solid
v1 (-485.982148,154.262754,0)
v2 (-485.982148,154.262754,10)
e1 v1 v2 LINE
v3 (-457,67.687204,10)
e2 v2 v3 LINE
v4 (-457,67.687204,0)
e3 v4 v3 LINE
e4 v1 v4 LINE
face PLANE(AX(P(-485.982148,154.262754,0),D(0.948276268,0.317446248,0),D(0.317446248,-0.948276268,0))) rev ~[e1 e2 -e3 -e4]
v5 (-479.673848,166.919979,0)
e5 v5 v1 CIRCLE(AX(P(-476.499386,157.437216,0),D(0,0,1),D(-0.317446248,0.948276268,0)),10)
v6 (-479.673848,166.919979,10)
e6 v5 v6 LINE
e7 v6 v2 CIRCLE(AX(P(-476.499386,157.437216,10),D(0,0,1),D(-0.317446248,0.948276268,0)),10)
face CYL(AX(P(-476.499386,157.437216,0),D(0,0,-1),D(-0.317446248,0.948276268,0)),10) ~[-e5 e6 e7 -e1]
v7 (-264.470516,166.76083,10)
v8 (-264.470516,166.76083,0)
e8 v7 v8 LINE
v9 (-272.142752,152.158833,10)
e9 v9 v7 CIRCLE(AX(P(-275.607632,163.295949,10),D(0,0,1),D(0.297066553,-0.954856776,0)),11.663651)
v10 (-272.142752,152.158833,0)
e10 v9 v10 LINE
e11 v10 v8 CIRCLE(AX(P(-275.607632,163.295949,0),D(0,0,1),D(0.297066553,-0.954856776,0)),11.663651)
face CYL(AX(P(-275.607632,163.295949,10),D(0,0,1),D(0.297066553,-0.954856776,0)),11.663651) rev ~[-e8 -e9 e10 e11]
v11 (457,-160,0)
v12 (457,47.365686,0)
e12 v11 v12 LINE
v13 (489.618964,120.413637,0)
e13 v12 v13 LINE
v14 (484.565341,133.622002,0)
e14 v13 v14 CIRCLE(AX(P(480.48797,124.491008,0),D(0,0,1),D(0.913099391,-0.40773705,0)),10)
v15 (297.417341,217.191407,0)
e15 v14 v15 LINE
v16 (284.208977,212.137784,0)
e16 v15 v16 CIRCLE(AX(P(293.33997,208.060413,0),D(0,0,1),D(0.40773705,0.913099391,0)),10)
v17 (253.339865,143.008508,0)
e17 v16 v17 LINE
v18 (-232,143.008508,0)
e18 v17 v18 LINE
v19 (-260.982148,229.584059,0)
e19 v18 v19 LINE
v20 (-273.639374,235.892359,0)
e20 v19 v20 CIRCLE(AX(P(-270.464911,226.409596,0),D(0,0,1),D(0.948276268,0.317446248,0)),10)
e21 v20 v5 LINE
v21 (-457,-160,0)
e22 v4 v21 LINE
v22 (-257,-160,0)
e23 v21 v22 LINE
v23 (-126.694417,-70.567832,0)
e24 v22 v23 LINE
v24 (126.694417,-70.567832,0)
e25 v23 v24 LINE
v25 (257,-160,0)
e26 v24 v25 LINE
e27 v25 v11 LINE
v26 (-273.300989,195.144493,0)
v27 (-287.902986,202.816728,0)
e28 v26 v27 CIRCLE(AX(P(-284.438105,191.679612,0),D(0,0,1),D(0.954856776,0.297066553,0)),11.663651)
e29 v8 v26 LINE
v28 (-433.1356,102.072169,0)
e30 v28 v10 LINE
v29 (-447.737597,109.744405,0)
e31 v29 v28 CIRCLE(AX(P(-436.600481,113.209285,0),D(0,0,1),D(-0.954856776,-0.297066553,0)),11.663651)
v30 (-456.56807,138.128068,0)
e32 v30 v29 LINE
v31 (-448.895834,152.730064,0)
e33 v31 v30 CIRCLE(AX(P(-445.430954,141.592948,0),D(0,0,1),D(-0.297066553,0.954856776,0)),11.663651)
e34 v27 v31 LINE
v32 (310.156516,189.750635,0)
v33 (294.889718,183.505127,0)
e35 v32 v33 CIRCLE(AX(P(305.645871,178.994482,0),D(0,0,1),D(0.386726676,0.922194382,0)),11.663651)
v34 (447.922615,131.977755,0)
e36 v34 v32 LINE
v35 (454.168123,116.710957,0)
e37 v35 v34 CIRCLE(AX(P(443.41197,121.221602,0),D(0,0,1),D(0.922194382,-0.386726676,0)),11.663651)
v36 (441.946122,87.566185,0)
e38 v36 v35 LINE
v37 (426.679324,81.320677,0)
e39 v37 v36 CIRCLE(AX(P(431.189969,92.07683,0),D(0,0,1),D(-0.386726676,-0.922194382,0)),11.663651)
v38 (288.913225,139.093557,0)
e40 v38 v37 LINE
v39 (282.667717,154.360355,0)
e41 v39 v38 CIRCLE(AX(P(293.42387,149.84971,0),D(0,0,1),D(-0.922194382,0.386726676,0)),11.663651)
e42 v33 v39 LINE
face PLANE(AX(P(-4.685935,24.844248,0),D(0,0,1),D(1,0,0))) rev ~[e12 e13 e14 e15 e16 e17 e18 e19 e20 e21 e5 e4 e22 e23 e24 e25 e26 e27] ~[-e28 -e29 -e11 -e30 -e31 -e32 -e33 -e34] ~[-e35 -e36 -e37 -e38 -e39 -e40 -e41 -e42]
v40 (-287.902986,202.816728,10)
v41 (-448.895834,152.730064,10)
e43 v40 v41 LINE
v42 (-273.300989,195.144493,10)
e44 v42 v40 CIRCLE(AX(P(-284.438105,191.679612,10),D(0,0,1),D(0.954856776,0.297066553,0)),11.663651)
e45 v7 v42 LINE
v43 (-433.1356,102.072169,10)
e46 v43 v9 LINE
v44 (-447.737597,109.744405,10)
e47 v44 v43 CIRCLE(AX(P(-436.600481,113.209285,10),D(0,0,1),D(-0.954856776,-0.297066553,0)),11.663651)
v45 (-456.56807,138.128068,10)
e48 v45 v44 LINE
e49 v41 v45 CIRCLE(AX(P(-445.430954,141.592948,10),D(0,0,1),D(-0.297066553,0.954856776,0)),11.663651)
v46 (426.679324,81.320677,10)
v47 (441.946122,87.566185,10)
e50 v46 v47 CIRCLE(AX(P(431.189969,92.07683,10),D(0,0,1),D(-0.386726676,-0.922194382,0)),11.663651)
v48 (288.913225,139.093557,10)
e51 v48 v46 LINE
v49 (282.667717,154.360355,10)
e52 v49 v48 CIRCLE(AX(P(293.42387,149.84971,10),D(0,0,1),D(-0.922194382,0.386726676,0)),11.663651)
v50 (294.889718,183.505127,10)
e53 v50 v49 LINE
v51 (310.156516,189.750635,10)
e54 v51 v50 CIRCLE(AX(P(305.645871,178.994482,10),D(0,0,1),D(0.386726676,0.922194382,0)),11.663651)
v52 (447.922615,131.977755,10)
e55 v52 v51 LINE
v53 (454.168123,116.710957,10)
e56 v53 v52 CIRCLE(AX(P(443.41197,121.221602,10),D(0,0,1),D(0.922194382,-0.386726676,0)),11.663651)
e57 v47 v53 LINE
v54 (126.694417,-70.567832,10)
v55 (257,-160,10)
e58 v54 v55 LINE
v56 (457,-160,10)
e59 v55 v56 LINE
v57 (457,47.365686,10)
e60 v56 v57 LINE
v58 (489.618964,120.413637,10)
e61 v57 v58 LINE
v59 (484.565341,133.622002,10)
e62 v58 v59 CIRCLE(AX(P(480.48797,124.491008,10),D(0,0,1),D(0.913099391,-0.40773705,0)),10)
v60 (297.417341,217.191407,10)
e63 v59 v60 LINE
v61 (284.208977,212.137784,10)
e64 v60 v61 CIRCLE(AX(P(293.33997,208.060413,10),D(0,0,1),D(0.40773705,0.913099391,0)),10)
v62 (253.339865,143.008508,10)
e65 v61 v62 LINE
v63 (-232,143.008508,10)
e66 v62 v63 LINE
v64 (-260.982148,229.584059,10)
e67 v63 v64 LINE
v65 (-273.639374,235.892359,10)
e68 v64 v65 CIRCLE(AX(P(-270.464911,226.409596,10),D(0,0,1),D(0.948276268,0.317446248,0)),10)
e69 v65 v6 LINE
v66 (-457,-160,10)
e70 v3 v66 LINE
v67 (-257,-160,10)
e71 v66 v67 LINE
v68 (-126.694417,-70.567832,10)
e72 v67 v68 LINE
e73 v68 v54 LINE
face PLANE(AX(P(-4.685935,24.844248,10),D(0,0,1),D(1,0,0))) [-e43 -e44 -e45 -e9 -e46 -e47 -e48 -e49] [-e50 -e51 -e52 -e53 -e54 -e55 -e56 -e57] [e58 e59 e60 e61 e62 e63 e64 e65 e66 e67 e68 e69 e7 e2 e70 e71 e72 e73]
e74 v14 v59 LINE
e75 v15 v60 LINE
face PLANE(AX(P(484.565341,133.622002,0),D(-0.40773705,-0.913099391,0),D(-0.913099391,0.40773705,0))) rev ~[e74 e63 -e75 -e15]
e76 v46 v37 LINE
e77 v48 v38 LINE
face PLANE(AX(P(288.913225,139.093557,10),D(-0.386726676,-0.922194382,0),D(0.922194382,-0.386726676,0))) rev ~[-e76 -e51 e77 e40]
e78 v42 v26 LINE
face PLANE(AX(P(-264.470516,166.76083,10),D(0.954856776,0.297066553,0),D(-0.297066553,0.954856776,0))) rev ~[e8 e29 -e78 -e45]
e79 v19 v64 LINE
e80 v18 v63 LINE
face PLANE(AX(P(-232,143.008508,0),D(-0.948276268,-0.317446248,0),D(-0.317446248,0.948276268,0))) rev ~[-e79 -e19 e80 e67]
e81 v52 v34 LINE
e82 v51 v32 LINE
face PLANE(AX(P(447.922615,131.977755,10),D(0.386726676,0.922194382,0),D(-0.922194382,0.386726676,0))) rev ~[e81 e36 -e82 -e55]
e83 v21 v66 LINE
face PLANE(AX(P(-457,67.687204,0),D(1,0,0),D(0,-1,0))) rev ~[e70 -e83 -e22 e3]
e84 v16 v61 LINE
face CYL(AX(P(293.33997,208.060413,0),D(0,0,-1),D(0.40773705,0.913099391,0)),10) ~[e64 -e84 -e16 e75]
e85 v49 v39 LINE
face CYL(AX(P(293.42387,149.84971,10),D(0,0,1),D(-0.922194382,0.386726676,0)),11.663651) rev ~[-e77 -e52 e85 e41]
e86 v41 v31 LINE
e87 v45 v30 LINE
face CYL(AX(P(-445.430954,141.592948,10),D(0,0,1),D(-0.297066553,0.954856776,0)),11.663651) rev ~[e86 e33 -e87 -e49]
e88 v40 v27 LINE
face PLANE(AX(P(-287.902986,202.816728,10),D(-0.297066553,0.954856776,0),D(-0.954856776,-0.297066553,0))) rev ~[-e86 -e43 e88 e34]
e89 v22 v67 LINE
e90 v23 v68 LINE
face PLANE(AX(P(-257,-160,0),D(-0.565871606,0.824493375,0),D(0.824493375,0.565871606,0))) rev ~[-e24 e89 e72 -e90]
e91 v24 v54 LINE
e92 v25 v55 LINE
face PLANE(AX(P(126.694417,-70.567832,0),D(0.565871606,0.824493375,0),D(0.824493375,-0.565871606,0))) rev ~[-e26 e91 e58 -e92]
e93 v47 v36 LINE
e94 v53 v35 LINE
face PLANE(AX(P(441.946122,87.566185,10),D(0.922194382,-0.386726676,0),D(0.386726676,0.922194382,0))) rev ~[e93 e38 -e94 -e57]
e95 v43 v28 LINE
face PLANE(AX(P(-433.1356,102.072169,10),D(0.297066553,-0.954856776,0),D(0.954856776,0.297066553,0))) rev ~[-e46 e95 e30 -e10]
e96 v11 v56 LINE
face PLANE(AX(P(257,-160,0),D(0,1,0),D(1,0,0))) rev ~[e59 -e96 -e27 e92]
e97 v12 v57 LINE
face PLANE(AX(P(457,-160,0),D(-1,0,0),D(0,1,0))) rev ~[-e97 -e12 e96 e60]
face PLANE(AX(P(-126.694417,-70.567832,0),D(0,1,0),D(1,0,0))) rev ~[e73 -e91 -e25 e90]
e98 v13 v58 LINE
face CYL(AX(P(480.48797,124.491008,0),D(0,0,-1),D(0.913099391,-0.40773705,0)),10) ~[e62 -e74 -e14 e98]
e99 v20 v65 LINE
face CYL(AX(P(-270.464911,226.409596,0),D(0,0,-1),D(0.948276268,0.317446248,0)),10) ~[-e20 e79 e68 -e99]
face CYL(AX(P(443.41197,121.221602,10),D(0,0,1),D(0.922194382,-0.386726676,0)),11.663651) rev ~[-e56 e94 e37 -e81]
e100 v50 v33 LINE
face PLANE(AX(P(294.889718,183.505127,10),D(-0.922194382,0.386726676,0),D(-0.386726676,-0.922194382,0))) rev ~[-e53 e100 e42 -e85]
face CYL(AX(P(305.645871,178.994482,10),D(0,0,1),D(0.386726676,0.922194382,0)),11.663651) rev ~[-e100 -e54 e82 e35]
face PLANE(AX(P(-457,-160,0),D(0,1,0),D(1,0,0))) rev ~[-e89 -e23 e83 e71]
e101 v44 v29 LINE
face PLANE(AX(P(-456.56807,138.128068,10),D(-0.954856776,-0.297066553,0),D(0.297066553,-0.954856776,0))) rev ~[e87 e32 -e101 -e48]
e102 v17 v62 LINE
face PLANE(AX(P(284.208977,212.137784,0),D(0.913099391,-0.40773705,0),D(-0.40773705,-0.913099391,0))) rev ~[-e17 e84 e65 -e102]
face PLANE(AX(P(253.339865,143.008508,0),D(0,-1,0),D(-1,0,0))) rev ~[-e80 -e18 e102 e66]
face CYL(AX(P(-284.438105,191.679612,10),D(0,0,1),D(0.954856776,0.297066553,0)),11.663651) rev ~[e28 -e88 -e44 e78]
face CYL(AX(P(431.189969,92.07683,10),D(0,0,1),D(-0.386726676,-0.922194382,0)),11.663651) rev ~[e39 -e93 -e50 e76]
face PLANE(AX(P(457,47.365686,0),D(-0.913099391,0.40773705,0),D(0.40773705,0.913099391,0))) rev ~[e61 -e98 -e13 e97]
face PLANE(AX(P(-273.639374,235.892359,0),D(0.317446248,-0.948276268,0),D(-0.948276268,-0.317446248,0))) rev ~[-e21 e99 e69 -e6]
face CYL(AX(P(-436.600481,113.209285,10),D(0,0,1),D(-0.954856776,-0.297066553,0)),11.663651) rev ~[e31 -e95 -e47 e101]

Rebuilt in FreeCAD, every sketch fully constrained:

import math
import FreeCAD as App
import Part
import Sketcher
from FreeCAD import Vector

doc = App.newDocument("Part")
body = doc.addObject("PartDesign::Body", "Body")

# Sketch on XY plane
sketch1 = doc.addObject("Sketcher::SketchObject", "Sketch")
body.addObject(sketch1)
sketch1.AttachmentSupport = (doc.XY_Plane, [""])
sketch1.MapMode = "FlatFace"
sketch1.addGeometry([
    Part.LineSegment(Vector(-257, -160, 0), Vector(-127, -71, 0)),  # 0
    Part.LineSegment(Vector(-127, -71, 0), Vector(127, -71, 0)),  # 1
    Part.LineSegment(Vector(127, -71, 0), Vector(257, -160, 0)),  # 2
    Part.LineSegment(Vector(257, -160, 0), Vector(457, -160, 0)),  # 3
    Part.LineSegment(Vector(457, -160, 0), Vector(457, 47, 0)),  # 4
    Part.LineSegment(Vector(457, 47, 0), Vector(490, 120, 0)),  # 5
    Part.ArcOfCircle(Part.Circle(Vector(480, 124, 0), Vector(0, 0, 1), 10), math.radians(-24), math.radians(66)),  # 6
    Part.LineSegment(Vector(485, 134, 0), Vector(297, 217, 0)),  # 7
    Part.ArcOfCircle(Part.Circle(Vector(293, 208, 0), Vector(0, 0, 1), 10), math.radians(66), math.radians(156)),  # 8
    Part.LineSegment(Vector(284, 212, 0), Vector(253, 143, 0)),  # 9
    Part.LineSegment(Vector(253, 143, 0), Vector(-232, 143, 0)),  # 10
    Part.LineSegment(Vector(-232, 143, 0), Vector(-261, 230, 0)),  # 11
    Part.ArcOfCircle(Part.Circle(Vector(-270, 226, 0), Vector(0, 0, 1), 10), math.radians(19), math.radians(109)),  # 12
    Part.LineSegment(Vector(-274, 236, 0), Vector(-480, 167, 0)),  # 13
    Part.ArcOfCircle(Part.Circle(Vector(-476, 157, 0), Vector(0, 0, 1), 10), math.radians(109), math.radians(199)),  # 14
    Part.LineSegment(Vector(-486, 154, 0), Vector(-457, 68, 0)),  # 15
    Part.LineSegment(Vector(-457, 68, 0), Vector(-457, -160, 0)),  # 16
    Part.LineSegment(Vector(-457, -160, 0), Vector(-257, -160, 0)),  # 17
], False)
sketch1.addConstraint([
    Sketcher.Constraint("Coincident", 0, 2, 1, 1),
    Sketcher.Constraint("Coincident", 1, 2, 2, 1),
    Sketcher.Constraint("Coincident", 2, 2, 3, 1),
    Sketcher.Constraint("Coincident", 3, 2, 4, 1),
    Sketcher.Constraint("Coincident", 4, 2, 5, 1),
    Sketcher.Constraint("Tangent", 5, 2, 6, 1),
    Sketcher.Constraint("Tangent", 6, 2, 7, 1),
    Sketcher.Constraint("Tangent", 7, 2, 8, 1),
    Sketcher.Constraint("Tangent", 8, 2, 9, 1),
    Sketcher.Constraint("Coincident", 9, 2, 10, 1),
    Sketcher.Constraint("Coincident", 10, 2, 11, 1),
    Sketcher.Constraint("Tangent", 11, 2, 12, 1),
    Sketcher.Constraint("Tangent", 12, 2, 13, 1),
    Sketcher.Constraint("Tangent", 13, 2, 14, 1),
    Sketcher.Constraint("Tangent", 14, 2, 15, 1),
    Sketcher.Constraint("Coincident", 15, 2, 16, 1),
    Sketcher.Constraint("Coincident", 16, 2, 17, 1),
    Sketcher.Constraint("Coincident", 17, 2, 0, 1),
    Sketcher.Constraint("Horizontal", 1),
    Sketcher.Constraint("Horizontal", 3),
    Sketcher.Constraint("Vertical", 4),
    Sketcher.Constraint("Horizontal", 10),
    Sketcher.Constraint("Vertical", 16),
    Sketcher.Constraint("Horizontal", 17),
    Sketcher.Constraint("Equal", 6, 8),
    Sketcher.Constraint("Equal", 8, 12),
    Sketcher.Constraint("Equal", 12, 14),
    Sketcher.Constraint("Symmetric", 3, 2, 16, 2, -2),
    Sketcher.Constraint("Perpendicular", 5, 7),
    Sketcher.Constraint("Perpendicular", 7, 9),
    Sketcher.Constraint("Perpendicular", 11, 13),
    Sketcher.Constraint("Perpendicular", 13, 15),
    Sketcher.Constraint("Equal", 3, 17),
    Sketcher.Constraint("Equal", 0, 2),
    Sketcher.Constraint("Equal", 11, 15),
    Sketcher.Constraint("Radius", 6, 10.0),
    Sketcher.Constraint("DistanceX", 3, 1, 3, 2, 200.0),
    Sketcher.Constraint("Distance", 5, 80.0),
    Sketcher.Constraint("DistanceX", -1, 1, 2, 2, 257.0),
    Sketcher.Constraint("DistanceY", 2, 2, -1, 1, 160.0),
    Sketcher.Constraint("DistanceX", 10, 2, -1, 1, 232.0),
    Sketcher.Constraint("DistanceY", -1, 1, 6, 2, 133.622002),
    Sketcher.Constraint("DistanceX", 8, 3, 6, 3, 187.148),
    Sketcher.Constraint("DistanceY", 6, 3, 7, 2, 92.700399),
    Sketcher.Constraint("DistanceY", 9, 2, 7, 2, 74.182899),
    Sketcher.Constraint("DistanceY", 11, 2, 12, 2, 6.3083),
    Sketcher.Constraint("DistanceX", 1, 1, 1, 2, 253.388833),
    Sketcher.Constraint("DistanceX", 12, 3, -1, 1, 270.464911),
    Sketcher.Constraint("DistanceY", 0, 2, 12, 3, 296.977429),
])
pad1 = doc.addObject("PartDesign::Pad", "Pad")
body.addObject(pad1)
pad1.Profile = sketch1
pad1.Length = 10

# Sketch on XY plane
sketch2 = doc.addObject("Sketcher::SketchObject", "Sketch001")
body.addObject(sketch2)
sketch2.AttachmentSupport = (doc.XY_Plane, [""])
sketch2.MapMode = "FlatFace"
sketch2.AttachmentOffset = App.Placement(Vector(0, 0, 10), App.Rotation())
sketch2.addGeometry([
    Part.LineSegment(Vector(-457, 138, 0), Vector(-448, 110, 0)),  # 0
    Part.ArcOfCircle(Part.Circle(Vector(-437, 113, 0), Vector(0, 0, 1), 12), math.radians(-163), math.radians(-73)),  # 1
    Part.LineSegment(Vector(-433, 102, 0), Vector(-272, 152, 0)),  # 2
    Part.ArcOfCircle(Part.Circle(Vector(-276, 163, 0), Vector(0, 0, 1), 12), math.radians(-73), math.radians(17)),  # 3
    Part.LineSegment(Vector(-264, 167, 0), Vector(-273, 195, 0)),  # 4
    Part.ArcOfCircle(Part.Circle(Vector(-284, 192, 0), Vector(0, 0, 1), 12), math.radians(17), math.radians(107)),  # 5
    Part.LineSegment(Vector(-288, 203, 0), Vector(-449, 153, 0)),  # 6
    Part.ArcOfCircle(Part.Circle(Vector(-445, 142, 0), Vector(0, 0, 1), 12), math.radians(107), math.radians(197)),  # 7
], False)
sketch2.addConstraint([
    Sketcher.Constraint("Tangent", 0, 2, 1, 1),
    Sketcher.Constraint("Tangent", 1, 2, 2, 1),
    Sketcher.Constraint("Tangent", 2, 2, 3, 1),
    Sketcher.Constraint("Tangent", 3, 2, 4, 1),
    Sketcher.Constraint("Tangent", 4, 2, 5, 1),
    Sketcher.Constraint("Tangent", 5, 2, 6, 1),
    Sketcher.Constraint("Tangent", 6, 2, 7, 1),
    Sketcher.Constraint("Tangent", 7, 2, 0, 1),
    Sketcher.Constraint("Equal", 1, 3),
    Sketcher.Constraint("Equal", 3, 5),
    Sketcher.Constraint("Equal", 5, 7),
    Sketcher.Constraint("Perpendicular", 0, 2),
    Sketcher.Constraint("Perpendicular", 2, 4),
    Sketcher.Constraint("Perpendicular", 4, 6),
    Sketcher.Constraint("Radius", 1, 11.663651),
    Sketcher.Constraint("DistanceY", 7, 3, 3, 3, 21.703001),
    Sketcher.Constraint("DistanceX", 1, 2, -1, 1, 433.1356),
    Sketcher.Constraint("DistanceY", 3, 2, 5, 2, 36.055898),
    Sketcher.Constraint("Distance", 0, 29.725571),
    Sketcher.Constraint("DistanceY", -1, 1, 3, 3, 163.295949),
])
pocket1 = doc.addObject("PartDesign::Pocket", "Pocket")
body.addObject(pocket1)
pocket1.Profile = sketch2
pocket1.Length = 10

# Sketch on XY plane
sketch3 = doc.addObject("Sketcher::SketchObject", "Sketch002")
body.addObject(sketch3)
sketch3.AttachmentSupport = (doc.XY_Plane, [""])
sketch3.MapMode = "FlatFace"
sketch3.AttachmentOffset = App.Placement(Vector(0, 0, 10), App.Rotation())
sketch3.addGeometry([
    Part.LineSegment(Vector(295, 184, 0), Vector(283, 154, 0)),  # 0
    Part.ArcOfCircle(Part.Circle(Vector(293, 150, 0), Vector(0, 0, 1), 12), math.radians(157), math.radians(247)),  # 1
    Part.LineSegment(Vector(289, 139, 0), Vector(427, 81, 0)),  # 2
    Part.ArcOfCircle(Part.Circle(Vector(431, 92, 0), Vector(0, 0, 1), 12), math.radians(-113), math.radians(-23)),  # 3
    Part.LineSegment(Vector(442, 88, 0), Vector(454, 117, 0)),  # 4
    Part.ArcOfCircle(Part.Circle(Vector(443, 121, 0), Vector(0, 0, 1), 12), math.radians(-23), math.radians(67)),  # 5
    Part.LineSegment(Vector(448, 132, 0), Vector(310, 190, 0)),  # 6
    Part.ArcOfCircle(Part.Circle(Vector(306, 179, 0), Vector(0, 0, 1), 12), math.radians(67), math.radians(157)),  # 7
], False)
sketch3.addConstraint([
    Sketcher.Constraint("Tangent", 0, 2, 1, 1),
    Sketcher.Constraint("Tangent", 1, 2, 2, 1),
    Sketcher.Constraint("Tangent", 2, 2, 3, 1),
    Sketcher.Constraint("Tangent", 3, 2, 4, 1),
    Sketcher.Constraint("Tangent", 4, 2, 5, 1),
    Sketcher.Constraint("Tangent", 5, 2, 6, 1),
    Sketcher.Constraint("Tangent", 6, 2, 7, 1),
    Sketcher.Constraint("Tangent", 7, 2, 0, 1),
    Sketcher.Constraint("Equal", 1, 3),
    Sketcher.Constraint("Equal", 3, 5),
    Sketcher.Constraint("Equal", 5, 7),
    Sketcher.Constraint("Perpendicular", 0, 2),
    Sketcher.Constraint("Perpendicular", 2, 4),
    Sketcher.Constraint("Perpendicular", 4, 6),
    Sketcher.Constraint("Radius", 1, 11.663651),
    Sketcher.Constraint("DistanceX", 3, 3, 5, 3, 12.222001),
    Sketcher.Constraint("DistanceY", -1, 1, 5, 3, 121.221602),
    Sketcher.Constraint("DistanceX", 1, 3, 3, 3, 137.766099),
    Sketcher.Constraint("DistanceY", 1, 2, 0, 2, 15.266798),
    Sketcher.Constraint("DistanceX", -1, 1, 1, 3, 293.42387),
])
pocket2 = doc.addObject("PartDesign::Pocket", "Pocket001")
body.addObject(pocket2)
pocket2.Profile = sketch3
pocket2.Length = 10

doc.recompute()
